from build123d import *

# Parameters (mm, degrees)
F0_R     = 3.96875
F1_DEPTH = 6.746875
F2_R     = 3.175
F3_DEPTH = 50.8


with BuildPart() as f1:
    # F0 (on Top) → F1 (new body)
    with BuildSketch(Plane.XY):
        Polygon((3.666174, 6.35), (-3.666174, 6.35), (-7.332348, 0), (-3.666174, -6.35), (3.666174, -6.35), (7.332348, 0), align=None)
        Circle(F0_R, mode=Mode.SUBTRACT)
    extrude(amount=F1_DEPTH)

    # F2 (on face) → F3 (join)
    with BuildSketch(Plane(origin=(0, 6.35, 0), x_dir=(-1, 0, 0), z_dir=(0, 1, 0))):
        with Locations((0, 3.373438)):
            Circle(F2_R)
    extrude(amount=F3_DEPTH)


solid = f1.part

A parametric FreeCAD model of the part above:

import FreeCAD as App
import Part
import Sketcher
Q = App.Units.Quantity


def add_polygon(sketch, points):
    """Adds a closed chain of lines whose ends are joined by coincident constraints."""
    first, n = sketch.GeometryCount, len(points)
    for a, b in zip(points, points[1:] + points[:1]):
        sketch.addGeometry(Part.LineSegment(App.Vector(*a, 0), App.Vector(*b, 0)), False)
    for i in range(n):
        sketch.addConstraint(Sketcher.Constraint("Coincident", first + i, 2, first + (i + 1) % n, 1))

doc = App.newDocument("Part")
body = doc.addObject("PartDesign::Body", "Body")

sketch1 = body.newObject("Sketcher::SketchObject", "Sketch")
sketch1.AttachmentSupport = (doc.getObject("XY_Plane"), [""])
sketch1.MapMode = "FlatFace"
add_polygon(sketch1, [(3.7, 6.3), (-3.7, 6.3), (-7.3, 0), (-3.7, -6.3), (3.7, -6.3), (7.3, 0)])
sketch1.addGeometry(Part.Circle(App.Vector(0, 0, 0), App.Vector(0, 0, 1), 4), False)
sketch1.addConstraint(Sketcher.Constraint("Horizontal", 0))
sketch1.addConstraint(Sketcher.Constraint("Horizontal", 3))
sketch1.addConstraint(Sketcher.Constraint("Coincident", 6, 3, -1, 1))
sketch1.addConstraint(Sketcher.Constraint("Symmetric", 0, 2, 3, 2, -1, 1))
sketch1.addConstraint(Sketcher.Constraint("Symmetric", 1, 2, 4, 2, -1, 1))
sketch1.addConstraint(Sketcher.Constraint("PointOnObject", 1, 2, -1))
sketch1.addConstraint(Sketcher.Constraint("Parallel", 2, 5))
sketch1.addConstraint(Sketcher.Constraint("Vertical", 0, 2, 2, 2))
sketch1.addConstraint(Sketcher.Constraint("Diameter", 6, Q("0.3125 in")))
sketch1.addConstraint(Sketcher.Constraint("Angle", 1, Q("-119.999999 deg")))
sketch1.addConstraint(Sketcher.Constraint("DistanceY", 2, 2, 0, 2, Q("0.5 in")))
sketch1.addConstraint(Sketcher.Constraint("DistanceX", 0, 2, 0, 1, 7.332348))
pad1 = body.newObject("PartDesign::Pad", "Pad")
pad1.Profile = sketch1
pad1.Length = Q("0.265625 in")

sketch2 = body.newObject("Sketcher::SketchObject", "Sketch001")
sketch2.AttachmentSupport = (doc.getObject("XZ_Plane"), [""])
sketch2.MapMode = "FlatFace"
sketch2.AttachmentOffset = App.Placement(App.Vector(0, 0, -0.25 * 25.4), App.Rotation())
sketch2.addGeometry(Part.Circle(App.Vector(0, 3.4, 0), App.Vector(0, 0, 1), 3.2), False)
sketch2.addConstraint(Sketcher.Constraint("PointOnObject", 0, 3, -2))
sketch2.addConstraint(Sketcher.Constraint("Diameter", 0, Q("0.25 in")))
sketch2.addConstraint(Sketcher.Constraint("DistanceY", -1, 1, 0, 3, 3.373438))
pad2 = body.newObject("PartDesign::Pad", "Pad001")
pad2.Profile = sketch2
pad2.Length = Q("2 in")
pad2.Reversed = True

doc.recompute()
